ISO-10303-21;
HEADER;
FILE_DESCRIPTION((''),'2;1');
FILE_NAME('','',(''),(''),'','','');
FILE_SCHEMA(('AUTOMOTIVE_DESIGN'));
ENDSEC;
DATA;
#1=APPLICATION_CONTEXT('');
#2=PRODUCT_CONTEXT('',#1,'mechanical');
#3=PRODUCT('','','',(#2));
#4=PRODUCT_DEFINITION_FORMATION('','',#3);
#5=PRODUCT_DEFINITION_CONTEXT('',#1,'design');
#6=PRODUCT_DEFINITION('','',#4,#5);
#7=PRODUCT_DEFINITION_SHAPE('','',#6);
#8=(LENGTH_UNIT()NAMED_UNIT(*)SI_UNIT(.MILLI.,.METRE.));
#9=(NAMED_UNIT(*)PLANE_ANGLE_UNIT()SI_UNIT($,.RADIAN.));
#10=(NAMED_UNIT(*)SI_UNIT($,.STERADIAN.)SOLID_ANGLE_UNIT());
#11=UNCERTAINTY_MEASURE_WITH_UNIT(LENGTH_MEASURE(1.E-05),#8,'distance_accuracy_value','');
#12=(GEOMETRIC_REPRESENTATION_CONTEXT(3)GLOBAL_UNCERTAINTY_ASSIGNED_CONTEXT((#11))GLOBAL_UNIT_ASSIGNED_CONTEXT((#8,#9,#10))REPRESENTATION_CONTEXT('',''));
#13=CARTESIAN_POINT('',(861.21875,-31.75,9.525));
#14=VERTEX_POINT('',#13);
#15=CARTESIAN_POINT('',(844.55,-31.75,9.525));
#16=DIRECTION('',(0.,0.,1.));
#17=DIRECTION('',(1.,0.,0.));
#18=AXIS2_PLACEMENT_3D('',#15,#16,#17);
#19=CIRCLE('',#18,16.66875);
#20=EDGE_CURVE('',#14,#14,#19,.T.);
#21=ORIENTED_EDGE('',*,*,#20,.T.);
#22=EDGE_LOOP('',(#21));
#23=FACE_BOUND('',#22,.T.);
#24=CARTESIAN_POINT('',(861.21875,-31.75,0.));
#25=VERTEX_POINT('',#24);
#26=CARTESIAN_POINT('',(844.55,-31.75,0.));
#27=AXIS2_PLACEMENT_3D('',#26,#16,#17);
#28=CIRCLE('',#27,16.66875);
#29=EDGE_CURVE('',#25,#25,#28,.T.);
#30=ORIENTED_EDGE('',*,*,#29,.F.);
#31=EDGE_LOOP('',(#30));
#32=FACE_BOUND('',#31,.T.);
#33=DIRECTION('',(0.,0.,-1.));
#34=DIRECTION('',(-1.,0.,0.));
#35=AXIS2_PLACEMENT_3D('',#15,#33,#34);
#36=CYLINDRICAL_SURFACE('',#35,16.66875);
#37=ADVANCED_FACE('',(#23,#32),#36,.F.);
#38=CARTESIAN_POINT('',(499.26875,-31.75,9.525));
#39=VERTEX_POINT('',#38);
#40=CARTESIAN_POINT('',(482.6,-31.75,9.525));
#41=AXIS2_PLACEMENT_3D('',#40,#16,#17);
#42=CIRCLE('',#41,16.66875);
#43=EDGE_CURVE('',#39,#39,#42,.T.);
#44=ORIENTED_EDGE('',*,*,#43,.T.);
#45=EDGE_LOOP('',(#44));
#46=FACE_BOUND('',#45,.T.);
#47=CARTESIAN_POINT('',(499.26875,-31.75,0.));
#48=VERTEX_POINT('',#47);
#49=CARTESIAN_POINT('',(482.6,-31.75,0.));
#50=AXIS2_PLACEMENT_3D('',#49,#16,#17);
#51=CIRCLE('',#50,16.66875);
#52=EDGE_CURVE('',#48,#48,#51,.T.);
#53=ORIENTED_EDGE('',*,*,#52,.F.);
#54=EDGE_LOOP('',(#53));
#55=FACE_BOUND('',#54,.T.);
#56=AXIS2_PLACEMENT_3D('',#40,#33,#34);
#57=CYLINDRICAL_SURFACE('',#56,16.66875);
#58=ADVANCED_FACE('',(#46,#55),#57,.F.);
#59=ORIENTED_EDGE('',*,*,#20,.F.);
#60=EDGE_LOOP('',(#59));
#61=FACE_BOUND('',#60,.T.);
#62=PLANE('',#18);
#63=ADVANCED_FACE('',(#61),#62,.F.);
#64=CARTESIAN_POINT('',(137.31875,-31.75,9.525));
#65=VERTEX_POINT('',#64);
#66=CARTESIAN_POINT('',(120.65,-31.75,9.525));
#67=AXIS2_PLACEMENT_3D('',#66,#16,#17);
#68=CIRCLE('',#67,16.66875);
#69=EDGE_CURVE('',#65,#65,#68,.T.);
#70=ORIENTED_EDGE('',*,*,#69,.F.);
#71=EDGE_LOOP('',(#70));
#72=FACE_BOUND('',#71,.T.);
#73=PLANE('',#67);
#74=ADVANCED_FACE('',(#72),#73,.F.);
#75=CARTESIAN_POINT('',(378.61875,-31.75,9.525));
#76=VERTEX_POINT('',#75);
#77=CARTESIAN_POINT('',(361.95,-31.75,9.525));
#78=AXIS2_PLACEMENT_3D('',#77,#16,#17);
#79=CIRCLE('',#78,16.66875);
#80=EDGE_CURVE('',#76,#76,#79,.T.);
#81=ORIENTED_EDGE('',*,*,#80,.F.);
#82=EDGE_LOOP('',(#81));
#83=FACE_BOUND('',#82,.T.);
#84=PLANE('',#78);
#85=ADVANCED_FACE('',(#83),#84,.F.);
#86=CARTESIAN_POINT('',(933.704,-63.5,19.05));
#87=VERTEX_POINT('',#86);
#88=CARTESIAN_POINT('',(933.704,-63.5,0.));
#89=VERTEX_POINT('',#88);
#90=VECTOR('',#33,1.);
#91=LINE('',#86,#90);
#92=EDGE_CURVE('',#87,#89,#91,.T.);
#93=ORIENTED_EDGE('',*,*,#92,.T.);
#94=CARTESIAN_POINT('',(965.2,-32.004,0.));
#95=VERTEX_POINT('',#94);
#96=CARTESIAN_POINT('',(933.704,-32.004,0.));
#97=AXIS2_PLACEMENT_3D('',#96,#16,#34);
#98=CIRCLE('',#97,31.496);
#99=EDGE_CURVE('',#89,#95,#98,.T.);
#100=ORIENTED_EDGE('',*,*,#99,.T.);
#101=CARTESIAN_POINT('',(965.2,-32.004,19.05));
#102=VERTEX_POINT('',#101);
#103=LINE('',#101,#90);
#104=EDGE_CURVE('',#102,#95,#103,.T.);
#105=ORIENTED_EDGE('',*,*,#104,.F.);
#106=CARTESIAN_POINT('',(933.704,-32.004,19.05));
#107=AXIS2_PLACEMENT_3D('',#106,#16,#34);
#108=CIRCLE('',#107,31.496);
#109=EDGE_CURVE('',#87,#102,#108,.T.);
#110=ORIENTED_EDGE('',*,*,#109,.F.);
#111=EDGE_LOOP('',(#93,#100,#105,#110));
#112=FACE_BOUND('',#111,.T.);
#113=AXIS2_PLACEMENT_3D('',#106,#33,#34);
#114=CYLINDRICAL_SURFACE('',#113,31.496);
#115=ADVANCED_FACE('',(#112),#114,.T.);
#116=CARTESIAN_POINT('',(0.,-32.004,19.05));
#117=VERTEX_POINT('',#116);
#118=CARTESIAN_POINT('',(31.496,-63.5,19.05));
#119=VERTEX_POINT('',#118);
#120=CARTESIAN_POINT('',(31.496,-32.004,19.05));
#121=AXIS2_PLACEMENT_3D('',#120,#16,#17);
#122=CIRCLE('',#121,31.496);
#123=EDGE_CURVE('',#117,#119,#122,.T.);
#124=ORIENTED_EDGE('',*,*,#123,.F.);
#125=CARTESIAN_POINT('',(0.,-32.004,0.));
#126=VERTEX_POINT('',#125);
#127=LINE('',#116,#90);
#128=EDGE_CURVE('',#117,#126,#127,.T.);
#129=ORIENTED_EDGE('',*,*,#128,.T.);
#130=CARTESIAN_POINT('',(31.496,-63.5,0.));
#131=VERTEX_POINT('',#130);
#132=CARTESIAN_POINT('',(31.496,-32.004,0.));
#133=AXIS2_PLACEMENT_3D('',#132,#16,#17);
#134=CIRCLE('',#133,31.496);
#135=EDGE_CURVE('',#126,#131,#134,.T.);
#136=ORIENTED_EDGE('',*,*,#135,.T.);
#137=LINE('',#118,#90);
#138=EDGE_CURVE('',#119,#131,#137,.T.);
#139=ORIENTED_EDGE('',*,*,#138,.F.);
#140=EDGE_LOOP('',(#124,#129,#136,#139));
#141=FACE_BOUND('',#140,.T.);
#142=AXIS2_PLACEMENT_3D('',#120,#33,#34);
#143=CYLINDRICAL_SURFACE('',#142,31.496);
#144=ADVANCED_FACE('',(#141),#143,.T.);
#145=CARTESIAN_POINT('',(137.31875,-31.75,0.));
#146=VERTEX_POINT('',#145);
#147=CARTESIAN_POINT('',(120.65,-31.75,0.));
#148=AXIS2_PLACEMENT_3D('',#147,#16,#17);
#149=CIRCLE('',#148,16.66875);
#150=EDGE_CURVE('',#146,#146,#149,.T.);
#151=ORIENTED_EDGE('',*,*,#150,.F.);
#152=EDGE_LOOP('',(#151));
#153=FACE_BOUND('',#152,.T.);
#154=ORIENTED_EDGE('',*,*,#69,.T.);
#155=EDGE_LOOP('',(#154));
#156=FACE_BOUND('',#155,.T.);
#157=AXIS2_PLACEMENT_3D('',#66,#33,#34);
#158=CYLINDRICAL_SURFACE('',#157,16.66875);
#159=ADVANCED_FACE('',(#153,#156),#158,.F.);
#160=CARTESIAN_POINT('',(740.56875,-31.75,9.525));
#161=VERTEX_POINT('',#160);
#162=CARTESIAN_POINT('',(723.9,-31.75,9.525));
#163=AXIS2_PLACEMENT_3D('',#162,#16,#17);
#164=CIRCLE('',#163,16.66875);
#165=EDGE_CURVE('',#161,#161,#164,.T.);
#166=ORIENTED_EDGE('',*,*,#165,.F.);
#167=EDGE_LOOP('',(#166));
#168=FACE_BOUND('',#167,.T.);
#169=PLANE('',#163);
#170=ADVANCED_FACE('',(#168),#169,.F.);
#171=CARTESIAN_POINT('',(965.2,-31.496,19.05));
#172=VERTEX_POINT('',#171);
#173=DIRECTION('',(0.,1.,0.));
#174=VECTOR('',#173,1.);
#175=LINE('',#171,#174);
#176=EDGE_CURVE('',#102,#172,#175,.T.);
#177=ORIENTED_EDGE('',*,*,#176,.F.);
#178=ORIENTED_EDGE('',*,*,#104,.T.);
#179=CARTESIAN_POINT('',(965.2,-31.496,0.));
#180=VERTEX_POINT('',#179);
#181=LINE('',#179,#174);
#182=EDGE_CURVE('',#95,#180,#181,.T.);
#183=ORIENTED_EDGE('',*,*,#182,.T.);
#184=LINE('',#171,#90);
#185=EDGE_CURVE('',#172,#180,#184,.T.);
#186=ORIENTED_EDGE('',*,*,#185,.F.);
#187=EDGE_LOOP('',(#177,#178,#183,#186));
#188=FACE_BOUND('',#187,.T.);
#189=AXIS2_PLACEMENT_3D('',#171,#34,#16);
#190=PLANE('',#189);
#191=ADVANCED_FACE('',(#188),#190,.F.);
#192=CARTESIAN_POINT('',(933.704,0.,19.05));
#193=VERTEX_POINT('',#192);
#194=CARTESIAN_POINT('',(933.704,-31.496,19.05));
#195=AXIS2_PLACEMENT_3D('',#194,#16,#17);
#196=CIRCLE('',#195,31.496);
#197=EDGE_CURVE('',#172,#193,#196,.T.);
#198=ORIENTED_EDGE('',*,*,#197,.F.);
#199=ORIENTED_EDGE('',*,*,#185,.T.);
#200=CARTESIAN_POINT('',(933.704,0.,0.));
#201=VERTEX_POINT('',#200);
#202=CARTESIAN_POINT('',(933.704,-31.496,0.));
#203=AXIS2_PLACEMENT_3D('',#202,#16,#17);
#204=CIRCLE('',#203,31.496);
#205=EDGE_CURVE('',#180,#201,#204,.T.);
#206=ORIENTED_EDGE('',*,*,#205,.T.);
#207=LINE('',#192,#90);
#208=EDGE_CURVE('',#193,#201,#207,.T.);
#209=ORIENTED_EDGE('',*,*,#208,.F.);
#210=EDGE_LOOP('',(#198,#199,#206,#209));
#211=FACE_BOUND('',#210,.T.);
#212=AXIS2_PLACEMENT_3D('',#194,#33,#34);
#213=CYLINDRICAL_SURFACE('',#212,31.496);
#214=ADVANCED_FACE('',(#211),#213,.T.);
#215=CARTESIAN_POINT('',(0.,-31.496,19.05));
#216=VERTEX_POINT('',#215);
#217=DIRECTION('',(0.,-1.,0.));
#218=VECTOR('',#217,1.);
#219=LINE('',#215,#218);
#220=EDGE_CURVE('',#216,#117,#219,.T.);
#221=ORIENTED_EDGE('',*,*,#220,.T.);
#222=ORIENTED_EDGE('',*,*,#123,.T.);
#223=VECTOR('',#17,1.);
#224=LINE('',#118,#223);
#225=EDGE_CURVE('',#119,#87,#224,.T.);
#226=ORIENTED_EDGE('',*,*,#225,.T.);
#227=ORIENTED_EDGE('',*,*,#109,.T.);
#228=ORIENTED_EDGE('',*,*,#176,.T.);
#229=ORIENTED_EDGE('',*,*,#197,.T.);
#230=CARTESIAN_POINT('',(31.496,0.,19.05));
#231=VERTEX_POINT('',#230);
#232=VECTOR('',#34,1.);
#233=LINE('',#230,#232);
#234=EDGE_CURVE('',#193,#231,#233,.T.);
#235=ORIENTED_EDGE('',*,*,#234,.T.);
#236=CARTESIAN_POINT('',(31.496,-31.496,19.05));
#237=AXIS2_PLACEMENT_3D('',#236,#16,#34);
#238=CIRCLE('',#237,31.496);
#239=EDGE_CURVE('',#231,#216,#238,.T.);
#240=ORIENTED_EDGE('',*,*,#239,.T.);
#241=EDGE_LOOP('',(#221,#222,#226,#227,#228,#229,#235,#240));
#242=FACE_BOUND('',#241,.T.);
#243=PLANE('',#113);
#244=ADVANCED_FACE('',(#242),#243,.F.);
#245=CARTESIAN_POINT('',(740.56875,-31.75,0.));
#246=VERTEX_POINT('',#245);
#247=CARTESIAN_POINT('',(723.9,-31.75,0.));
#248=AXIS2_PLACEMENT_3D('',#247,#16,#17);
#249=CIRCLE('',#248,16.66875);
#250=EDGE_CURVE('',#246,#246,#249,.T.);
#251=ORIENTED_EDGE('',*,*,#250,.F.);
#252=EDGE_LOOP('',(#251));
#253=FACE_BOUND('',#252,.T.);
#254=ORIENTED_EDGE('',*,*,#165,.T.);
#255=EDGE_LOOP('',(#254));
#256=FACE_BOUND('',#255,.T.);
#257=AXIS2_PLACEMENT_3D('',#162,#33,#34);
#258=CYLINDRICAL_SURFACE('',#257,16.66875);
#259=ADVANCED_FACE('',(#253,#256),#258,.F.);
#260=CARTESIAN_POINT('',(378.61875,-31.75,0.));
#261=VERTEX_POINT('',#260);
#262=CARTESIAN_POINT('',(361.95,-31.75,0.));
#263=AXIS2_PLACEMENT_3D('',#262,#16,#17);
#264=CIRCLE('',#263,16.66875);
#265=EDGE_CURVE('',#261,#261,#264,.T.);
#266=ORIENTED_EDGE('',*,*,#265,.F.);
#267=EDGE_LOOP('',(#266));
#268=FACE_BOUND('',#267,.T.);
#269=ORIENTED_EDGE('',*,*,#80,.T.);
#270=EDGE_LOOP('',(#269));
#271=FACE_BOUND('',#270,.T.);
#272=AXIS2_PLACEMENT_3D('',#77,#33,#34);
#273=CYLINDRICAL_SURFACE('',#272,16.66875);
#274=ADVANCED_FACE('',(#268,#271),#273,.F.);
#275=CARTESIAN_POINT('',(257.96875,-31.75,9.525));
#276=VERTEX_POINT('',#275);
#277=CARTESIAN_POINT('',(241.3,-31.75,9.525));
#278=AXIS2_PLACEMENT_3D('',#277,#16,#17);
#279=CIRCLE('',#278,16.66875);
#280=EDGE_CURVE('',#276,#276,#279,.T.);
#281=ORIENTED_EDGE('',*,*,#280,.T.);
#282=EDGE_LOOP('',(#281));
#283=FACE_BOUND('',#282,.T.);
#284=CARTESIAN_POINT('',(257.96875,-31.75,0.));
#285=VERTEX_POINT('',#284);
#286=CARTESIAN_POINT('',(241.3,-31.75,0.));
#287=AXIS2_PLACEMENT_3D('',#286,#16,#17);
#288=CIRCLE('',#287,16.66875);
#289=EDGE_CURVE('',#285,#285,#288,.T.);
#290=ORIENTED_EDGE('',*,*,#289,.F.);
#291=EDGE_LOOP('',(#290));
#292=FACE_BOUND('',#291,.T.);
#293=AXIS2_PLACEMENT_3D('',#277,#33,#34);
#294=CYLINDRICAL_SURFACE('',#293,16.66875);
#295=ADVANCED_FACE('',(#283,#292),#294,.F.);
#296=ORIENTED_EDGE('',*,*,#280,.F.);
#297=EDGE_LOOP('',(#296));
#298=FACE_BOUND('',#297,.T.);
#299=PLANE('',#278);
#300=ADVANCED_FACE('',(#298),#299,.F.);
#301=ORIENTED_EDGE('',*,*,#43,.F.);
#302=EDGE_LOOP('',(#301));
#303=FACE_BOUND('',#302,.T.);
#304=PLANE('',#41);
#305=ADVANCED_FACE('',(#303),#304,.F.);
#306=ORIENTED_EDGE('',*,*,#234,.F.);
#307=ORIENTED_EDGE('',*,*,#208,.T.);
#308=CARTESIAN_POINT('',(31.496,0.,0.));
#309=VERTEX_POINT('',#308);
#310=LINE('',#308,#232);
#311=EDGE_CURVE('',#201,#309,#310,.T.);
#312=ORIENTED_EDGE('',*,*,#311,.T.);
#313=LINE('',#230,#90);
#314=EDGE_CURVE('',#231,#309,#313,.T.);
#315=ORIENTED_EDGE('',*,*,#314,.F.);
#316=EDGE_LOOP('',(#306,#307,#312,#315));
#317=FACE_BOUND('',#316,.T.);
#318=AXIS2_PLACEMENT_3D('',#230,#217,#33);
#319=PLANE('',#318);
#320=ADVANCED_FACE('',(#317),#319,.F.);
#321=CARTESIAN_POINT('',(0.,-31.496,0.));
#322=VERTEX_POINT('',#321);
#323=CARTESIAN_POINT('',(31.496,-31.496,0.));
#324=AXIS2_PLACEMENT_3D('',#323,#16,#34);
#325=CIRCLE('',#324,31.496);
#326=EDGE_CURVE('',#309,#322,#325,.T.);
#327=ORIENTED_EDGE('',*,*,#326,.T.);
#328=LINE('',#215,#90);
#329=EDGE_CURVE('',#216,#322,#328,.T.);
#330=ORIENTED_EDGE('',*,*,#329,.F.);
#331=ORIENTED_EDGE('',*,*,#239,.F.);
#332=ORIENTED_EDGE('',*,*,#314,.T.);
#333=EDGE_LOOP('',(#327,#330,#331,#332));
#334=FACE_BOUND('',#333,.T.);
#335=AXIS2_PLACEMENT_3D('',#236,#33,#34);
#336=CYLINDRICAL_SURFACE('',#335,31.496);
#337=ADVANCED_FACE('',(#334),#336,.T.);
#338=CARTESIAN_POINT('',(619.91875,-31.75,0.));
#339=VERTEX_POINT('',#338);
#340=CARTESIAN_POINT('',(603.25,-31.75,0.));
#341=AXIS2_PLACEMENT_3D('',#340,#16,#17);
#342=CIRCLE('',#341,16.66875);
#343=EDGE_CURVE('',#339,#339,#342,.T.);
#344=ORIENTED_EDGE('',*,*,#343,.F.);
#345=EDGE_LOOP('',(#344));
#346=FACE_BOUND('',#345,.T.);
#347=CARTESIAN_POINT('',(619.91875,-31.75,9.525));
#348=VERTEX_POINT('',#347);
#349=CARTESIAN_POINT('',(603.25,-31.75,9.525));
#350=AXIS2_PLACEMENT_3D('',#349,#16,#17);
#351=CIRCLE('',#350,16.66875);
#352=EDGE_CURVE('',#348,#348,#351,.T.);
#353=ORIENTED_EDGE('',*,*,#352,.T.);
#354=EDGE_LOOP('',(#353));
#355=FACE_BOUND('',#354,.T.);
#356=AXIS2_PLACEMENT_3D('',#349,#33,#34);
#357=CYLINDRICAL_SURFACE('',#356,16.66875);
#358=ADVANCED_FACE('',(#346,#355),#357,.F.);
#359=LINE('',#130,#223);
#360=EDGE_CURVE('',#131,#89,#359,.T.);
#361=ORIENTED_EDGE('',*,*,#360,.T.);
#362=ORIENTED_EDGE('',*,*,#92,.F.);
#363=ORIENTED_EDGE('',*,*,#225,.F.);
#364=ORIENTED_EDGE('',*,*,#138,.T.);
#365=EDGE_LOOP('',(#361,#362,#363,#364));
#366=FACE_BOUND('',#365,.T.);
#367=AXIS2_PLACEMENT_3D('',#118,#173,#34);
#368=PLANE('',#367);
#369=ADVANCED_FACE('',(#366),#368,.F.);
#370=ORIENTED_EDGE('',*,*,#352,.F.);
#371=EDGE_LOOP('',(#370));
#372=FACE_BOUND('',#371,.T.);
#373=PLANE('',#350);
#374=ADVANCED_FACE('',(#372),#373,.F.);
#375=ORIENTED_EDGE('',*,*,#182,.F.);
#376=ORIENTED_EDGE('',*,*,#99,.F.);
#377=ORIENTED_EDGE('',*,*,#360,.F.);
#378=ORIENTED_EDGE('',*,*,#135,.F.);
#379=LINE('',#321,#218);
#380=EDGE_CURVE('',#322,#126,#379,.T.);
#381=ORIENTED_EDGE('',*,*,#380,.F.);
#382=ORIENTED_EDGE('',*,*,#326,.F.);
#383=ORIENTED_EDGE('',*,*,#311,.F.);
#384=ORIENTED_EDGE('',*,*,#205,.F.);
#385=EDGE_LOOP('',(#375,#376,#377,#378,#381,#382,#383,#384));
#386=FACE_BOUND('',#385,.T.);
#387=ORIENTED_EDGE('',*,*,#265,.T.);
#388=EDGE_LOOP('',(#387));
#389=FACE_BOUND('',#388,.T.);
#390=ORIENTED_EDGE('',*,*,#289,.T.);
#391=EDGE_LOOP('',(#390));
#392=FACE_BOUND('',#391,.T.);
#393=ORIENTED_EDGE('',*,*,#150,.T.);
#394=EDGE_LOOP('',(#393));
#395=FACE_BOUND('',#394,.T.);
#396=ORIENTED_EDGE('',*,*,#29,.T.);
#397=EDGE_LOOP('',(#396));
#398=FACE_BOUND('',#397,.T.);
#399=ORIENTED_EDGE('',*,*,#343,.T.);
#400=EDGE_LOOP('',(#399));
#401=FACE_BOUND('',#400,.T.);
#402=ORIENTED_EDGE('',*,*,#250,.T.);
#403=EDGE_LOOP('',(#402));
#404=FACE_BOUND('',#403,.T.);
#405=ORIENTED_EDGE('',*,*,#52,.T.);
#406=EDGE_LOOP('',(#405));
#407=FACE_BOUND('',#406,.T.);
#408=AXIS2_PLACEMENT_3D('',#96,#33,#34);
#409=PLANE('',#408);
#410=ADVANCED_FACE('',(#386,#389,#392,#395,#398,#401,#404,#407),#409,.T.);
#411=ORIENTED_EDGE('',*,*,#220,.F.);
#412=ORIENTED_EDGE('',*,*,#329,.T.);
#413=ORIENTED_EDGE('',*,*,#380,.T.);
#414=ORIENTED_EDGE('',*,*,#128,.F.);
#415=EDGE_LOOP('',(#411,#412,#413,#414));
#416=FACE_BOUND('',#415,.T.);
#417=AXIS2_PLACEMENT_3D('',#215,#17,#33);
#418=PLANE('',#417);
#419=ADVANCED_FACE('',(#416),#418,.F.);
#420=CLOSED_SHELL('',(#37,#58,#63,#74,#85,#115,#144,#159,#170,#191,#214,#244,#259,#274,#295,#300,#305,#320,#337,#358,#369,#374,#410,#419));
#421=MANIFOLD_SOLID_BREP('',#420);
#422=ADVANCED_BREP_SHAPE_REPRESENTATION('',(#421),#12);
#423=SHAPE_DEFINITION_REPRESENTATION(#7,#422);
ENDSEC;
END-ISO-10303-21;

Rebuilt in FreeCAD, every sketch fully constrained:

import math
import FreeCAD as App
import Part
import Sketcher

V = App.Vector
Q = App.Units.Quantity

doc = App.newDocument("Part")
body = doc.addObject("PartDesign::Body", "Body")

# Sketch on XY plane
sketch1 = doc.addObject("Sketcher::SketchObject", "Sketch")
body.addObject(sketch1)
sketch1.AttachmentSupport = (doc.XY_Plane, [""])
sketch1.MapMode = "FlatFace"
sketch1.addGeometry([
    Part.LineSegment(V(933.704, 0, 0), V(31.496, 0, 0)),  # 0
    Part.ArcOfCircle(Part.Circle(V(31.496, -31.496, 0), V(0, 0, 1), 31.496), math.radians(90), math.radians(180)),  # 1
    Part.LineSegment(V(0, -31.496, 0), V(0, -32.004, 0)),  # 2
    Part.ArcOfCircle(Part.Circle(V(31.496, -32.004, 0), V(0, 0, 1), 31.496), math.radians(-180), math.radians(-90)),  # 3
    Part.LineSegment(V(31.496, -63.5, 0), V(933.704, -63.5, 0)),  # 4
    Part.ArcOfCircle(Part.Circle(V(933.704, -32.004, 0), V(0, 0, 1), 31.496), math.radians(-90), math.radians(0)),  # 5
    Part.LineSegment(V(965.2, -32.004, 0), V(965.2, -31.496, 0)),  # 6
    Part.ArcOfCircle(Part.Circle(V(933.704, -31.496, 0), V(0, 0, 1), 31.496), math.radians(0), math.radians(90)),  # 7
], False)
sketch1.addConstraint([
    Sketcher.Constraint("Tangent", 0, 2, 1, 1),
    Sketcher.Constraint("Tangent", 1, 2, 2, 1),
    Sketcher.Constraint("Tangent", 2, 2, 3, 1),
    Sketcher.Constraint("Tangent", 3, 2, 4, 1),
    Sketcher.Constraint("Tangent", 4, 2, 5, 1),
    Sketcher.Constraint("Tangent", 5, 2, 6, 1),
    Sketcher.Constraint("Tangent", 6, 2, 7, 1),
    Sketcher.Constraint("Tangent", 7, 2, 0, 1),
    Sketcher.Constraint("Horizontal", 0),
    Sketcher.Constraint("Vertical", 2),
    Sketcher.Constraint("Horizontal", 4),
    Sketcher.Constraint("Vertical", 6),
    Sketcher.Constraint("Equal", 1, 3),
    Sketcher.Constraint("Equal", 3, 5),
    Sketcher.Constraint("Equal", 5, 7),
    Sketcher.Constraint("PointOnObject", 0, 2, -1),
    Sketcher.Constraint("PointOnObject", 1, 2, -2),
    Sketcher.Constraint("Radius", 1, Q("1.24 in")),
    Sketcher.Constraint("DistanceX", -1, 1, 5, 2, Q("38 in")),
    Sketcher.Constraint("DistanceY", 2, 2, 2, 1, Q("0.02 in")),
])
pad1 = doc.addObject("PartDesign::Pad", "Pad")
body.addObject(pad1)
pad1.Profile = sketch1
pad1.Length = Q("0.75 in")

# Sketch on XY plane
sketch2 = doc.addObject("Sketcher::SketchObject", "Sketch001")
body.addObject(sketch2)
sketch2.AttachmentSupport = (doc.XY_Plane, [""])
sketch2.MapMode = "FlatFace"
sketch2.addGeometry([
    Part.Circle(V(844.55, -31.75, 0), V(0, 0, 1), 16.66875),  # 0
    Part.Circle(V(723.9, -31.75, 0), V(0, 0, 1), 16.66875),  # 1
    Part.Circle(V(603.25, -31.75, 0), V(0, 0, 1), 16.66875),  # 2
    Part.Circle(V(482.6, -31.75, 0), V(0, 0, 1), 16.66875),  # 3
    Part.Circle(V(361.95, -31.75, 0), V(0, 0, 1), 16.66875),  # 4
    Part.Circle(V(241.3, -31.75, 0), V(0, 0, 1), 16.66875),  # 5
    Part.Circle(V(120.65, -31.75, 0), V(0, 0, 1), 16.66875),  # 6
], False)
sketch2.addConstraint([
    Sketcher.Constraint("Equal", 0, 1),
    Sketcher.Constraint("Equal", 1, 2),
    Sketcher.Constraint("Equal", 2, 3),
    Sketcher.Constraint("Equal", 3, 4),
    Sketcher.Constraint("Equal", 4, 5),
    Sketcher.Constraint("Equal", 5, 6),
    Sketcher.Constraint("Horizontal", 0, 3, 1, 3),
    Sketcher.Constraint("Horizontal", 1, 3, 2, 3),
    Sketcher.Constraint("Horizontal", 2, 3, 3, 3),
    Sketcher.Constraint("Horizontal", 3, 3, 4, 3),
    Sketcher.Constraint("Horizontal", 4, 3, 5, 3),
    Sketcher.Constraint("Horizontal", 5, 3, 6, 3),
    Sketcher.Constraint("Diameter", 0, Q("1.3125 in")),
    Sketcher.Constraint("DistanceX", -1, 1, 3, 3, Q("19 in")),
    Sketcher.Constraint("DistanceX", 4, 3, 0, 3, Q("19 in")),
    Sketcher.Constraint("DistanceX", 5, 3, 1, 3, Q("19 in")),
    Sketcher.Constraint("DistanceX", 6, 3, 2, 3, Q("19 in")),
    Sketcher.Constraint("DistanceX", -1, 1, 1, 3, Q("28.5 in")),
    Sketcher.Constraint("DistanceX", 2, 3, 0, 3, Q("9.5 in")),
    Sketcher.Constraint("DistanceX", -1, 1, 0, 3, Q("33.25 in")),
    Sketcher.Constraint("DistanceY", 0, 3, -1, 1, Q("1.25 in")),
])
pocket1 = doc.addObject("PartDesign::Pocket", "Pocket")
body.addObject(pocket1)
pocket1.Profile = sketch2
pocket1.Length = Q("0.375 in")
pocket1.Reversed = True

doc.recompute()
